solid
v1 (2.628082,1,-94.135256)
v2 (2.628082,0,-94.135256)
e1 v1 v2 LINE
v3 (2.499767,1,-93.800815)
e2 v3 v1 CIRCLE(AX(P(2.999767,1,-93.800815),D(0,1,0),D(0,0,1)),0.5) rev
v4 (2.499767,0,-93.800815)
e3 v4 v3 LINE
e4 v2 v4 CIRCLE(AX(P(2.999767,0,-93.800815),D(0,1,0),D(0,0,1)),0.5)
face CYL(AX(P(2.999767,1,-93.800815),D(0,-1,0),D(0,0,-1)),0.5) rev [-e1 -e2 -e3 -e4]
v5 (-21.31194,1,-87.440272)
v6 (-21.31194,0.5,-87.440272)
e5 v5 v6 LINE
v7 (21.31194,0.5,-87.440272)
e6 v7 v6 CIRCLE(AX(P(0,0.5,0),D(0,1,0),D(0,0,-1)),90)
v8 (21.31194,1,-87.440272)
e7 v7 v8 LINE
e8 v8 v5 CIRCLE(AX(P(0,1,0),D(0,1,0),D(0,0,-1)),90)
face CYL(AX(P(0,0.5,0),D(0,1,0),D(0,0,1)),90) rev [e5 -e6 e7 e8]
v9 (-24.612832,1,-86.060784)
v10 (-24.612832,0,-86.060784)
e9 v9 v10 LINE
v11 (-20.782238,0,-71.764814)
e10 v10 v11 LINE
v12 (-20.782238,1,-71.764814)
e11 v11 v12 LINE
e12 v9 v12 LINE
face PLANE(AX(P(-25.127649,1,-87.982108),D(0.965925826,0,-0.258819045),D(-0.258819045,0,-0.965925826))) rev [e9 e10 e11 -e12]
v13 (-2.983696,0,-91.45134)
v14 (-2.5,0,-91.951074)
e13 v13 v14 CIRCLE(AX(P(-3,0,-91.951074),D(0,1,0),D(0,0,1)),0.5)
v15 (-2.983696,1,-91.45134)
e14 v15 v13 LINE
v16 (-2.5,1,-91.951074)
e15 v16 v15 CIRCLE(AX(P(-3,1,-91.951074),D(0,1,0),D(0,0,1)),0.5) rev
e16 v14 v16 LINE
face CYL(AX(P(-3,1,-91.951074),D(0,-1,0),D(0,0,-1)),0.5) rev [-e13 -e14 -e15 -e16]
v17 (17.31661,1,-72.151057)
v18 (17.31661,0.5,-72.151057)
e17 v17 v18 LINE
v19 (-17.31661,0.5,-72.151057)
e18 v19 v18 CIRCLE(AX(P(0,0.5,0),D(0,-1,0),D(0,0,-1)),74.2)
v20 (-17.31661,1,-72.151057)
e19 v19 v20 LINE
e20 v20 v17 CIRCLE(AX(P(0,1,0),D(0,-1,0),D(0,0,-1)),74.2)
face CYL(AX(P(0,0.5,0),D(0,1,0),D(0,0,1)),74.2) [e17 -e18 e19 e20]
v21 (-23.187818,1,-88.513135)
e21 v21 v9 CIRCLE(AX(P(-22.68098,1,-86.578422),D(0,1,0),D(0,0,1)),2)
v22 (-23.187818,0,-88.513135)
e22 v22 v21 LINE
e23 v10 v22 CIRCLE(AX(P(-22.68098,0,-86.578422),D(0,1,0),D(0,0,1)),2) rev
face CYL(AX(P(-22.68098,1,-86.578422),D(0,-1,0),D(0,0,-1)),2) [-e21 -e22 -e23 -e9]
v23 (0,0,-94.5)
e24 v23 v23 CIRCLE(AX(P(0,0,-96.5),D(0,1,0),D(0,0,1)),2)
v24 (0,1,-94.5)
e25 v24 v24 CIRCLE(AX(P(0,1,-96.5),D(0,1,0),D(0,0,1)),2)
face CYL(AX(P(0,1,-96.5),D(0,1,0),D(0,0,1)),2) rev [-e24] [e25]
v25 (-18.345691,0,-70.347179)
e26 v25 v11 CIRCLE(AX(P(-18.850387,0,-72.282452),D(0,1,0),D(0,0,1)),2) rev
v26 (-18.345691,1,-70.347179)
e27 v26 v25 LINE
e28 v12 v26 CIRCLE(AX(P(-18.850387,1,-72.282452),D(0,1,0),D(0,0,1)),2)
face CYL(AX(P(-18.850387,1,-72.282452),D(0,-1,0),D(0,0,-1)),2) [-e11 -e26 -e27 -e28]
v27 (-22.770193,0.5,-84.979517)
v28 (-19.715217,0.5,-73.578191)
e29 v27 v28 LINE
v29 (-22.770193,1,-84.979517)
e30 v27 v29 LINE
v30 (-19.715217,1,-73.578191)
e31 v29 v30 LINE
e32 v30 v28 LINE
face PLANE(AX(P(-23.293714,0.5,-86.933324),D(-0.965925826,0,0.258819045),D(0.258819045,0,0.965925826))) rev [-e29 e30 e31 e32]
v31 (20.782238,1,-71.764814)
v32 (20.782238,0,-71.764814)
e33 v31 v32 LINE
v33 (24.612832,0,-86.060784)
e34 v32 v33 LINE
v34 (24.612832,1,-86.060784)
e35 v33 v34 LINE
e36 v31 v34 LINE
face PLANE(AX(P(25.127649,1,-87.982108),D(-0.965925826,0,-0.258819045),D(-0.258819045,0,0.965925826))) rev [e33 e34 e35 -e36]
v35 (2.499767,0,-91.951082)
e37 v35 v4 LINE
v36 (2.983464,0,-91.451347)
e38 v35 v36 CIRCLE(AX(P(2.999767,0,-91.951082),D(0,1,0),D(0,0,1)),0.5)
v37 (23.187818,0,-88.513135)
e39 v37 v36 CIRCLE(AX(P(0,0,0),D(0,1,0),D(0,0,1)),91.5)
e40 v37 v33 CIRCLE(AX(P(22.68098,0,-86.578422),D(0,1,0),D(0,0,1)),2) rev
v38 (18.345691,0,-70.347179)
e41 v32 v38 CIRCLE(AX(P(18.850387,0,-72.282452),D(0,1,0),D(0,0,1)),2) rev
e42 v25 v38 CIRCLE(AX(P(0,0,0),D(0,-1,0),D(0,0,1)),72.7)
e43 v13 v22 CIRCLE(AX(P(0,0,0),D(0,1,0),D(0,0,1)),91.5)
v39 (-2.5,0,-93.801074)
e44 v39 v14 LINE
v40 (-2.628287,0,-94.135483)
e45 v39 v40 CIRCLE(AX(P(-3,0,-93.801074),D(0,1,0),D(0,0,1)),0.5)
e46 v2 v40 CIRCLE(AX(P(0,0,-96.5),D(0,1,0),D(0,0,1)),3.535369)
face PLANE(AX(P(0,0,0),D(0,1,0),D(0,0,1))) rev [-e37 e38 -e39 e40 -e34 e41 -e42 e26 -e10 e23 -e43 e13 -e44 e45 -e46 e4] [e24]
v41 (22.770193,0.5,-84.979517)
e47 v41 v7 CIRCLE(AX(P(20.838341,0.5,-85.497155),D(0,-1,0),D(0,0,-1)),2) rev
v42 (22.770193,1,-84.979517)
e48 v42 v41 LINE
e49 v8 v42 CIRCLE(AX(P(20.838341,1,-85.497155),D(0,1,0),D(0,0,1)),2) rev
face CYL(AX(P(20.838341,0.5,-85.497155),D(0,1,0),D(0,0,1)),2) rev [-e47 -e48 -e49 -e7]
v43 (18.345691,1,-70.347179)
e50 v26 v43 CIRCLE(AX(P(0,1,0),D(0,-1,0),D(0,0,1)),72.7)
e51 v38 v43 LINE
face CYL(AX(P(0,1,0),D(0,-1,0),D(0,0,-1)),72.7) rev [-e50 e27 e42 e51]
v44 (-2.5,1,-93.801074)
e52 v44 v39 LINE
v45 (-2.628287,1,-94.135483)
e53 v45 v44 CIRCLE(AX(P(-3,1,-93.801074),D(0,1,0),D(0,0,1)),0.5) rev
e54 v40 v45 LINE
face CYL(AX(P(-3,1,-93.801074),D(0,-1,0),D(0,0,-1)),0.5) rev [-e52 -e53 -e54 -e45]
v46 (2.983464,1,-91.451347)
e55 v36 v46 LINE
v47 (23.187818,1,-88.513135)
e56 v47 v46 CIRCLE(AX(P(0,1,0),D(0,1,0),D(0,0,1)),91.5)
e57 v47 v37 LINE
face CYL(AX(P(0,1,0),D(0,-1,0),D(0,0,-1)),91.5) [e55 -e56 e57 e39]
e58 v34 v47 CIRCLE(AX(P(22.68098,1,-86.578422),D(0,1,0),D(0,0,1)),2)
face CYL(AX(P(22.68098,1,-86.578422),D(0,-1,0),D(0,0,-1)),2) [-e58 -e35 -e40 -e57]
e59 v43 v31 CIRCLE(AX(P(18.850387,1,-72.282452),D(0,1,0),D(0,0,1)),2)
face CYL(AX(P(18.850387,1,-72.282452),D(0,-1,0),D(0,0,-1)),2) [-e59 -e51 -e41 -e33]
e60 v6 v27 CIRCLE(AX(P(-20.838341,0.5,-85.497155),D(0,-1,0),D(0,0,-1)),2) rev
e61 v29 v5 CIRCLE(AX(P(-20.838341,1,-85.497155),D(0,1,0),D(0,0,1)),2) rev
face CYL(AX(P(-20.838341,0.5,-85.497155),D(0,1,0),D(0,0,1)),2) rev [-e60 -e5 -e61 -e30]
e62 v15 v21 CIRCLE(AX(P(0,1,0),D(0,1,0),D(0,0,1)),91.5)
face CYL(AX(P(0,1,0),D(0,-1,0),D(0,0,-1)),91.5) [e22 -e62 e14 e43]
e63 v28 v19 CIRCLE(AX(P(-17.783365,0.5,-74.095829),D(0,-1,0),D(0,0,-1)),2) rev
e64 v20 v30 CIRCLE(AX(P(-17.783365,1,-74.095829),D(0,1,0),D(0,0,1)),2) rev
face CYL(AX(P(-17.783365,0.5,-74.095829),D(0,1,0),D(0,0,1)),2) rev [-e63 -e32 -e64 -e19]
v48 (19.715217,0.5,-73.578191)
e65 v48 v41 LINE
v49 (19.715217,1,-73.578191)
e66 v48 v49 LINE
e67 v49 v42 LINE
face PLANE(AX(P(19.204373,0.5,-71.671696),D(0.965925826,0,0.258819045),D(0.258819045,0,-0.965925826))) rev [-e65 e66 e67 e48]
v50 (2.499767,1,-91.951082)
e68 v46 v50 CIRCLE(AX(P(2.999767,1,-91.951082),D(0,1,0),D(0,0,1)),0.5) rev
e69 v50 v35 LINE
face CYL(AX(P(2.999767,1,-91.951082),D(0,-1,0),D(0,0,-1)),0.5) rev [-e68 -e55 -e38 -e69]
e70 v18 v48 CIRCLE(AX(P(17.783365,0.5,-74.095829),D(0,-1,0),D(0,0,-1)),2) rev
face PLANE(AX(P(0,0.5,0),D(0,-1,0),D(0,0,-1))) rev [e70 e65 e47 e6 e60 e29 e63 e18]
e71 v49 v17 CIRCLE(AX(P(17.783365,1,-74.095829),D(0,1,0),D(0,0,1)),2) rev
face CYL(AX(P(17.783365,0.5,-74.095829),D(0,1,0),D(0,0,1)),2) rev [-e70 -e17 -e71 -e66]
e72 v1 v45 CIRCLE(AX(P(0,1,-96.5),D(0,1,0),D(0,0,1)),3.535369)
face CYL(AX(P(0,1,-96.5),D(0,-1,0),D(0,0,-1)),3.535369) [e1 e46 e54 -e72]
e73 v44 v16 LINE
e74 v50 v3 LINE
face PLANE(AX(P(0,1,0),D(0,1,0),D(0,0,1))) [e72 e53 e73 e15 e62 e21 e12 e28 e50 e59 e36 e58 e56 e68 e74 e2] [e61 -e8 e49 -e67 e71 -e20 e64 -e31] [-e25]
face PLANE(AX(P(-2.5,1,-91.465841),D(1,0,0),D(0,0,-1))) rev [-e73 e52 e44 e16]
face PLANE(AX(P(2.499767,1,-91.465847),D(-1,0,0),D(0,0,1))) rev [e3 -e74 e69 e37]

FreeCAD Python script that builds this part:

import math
import FreeCAD as App
import Part
import Sketcher
from FreeCAD import Vector
Q = App.Units.Quantity


def edges_at(feature, points):
    """Names of the edges that pass closest to the given points."""
    edges = feature.Shape.Edges
    near = lambda p: min(range(len(edges)), key=lambda i: edges[i].distToShape(Part.Vertex(*p))[0])
    return sorted({f"Edge{near(p) + 1}" for p in points})

doc = App.newDocument("Part")
body = doc.addObject("PartDesign::Body", "Body")

sketch1 = body.newObject("Sketcher::SketchObject", "Sketch")
sketch1.AttachmentSupport = (doc.getObject("XZ_Plane"), [""])
sketch1.MapMode = "FlatFace"
sketch1.addGeometry([
    Part.LineSegment(Vector(-25.1, -88, 0), Vector(-20.3, -69.8, 0)),
    Part.ArcOfCircle(Part.Circle(Vector(0, 0, 0), Vector(0, 0, 1), 72.7), math.radians(-106), math.radians(-74)),
    Part.LineSegment(Vector(20.3, -69.8, 0), Vector(25.1, -88, 0)),
    Part.ArcOfCircle(Part.Circle(Vector(0, 0, 0), Vector(0, 0, 1), 91.5), math.radians(-88.43), math.radians(-74.06)),
    Part.LineSegment(Vector(2.5, -91.5, 0), Vector(2.5, -94, 0)),
    Part.ArcOfCircle(Part.Circle(Vector(0, -96.5, 0), Vector(0, 0, 1), 3.5), math.radians(135), math.radians(405)),
    Part.LineSegment(Vector(-2.5, -94, 0), Vector(-2.5, -91.5, 0)),
    Part.ArcOfCircle(Part.Circle(Vector(0, 0, 0), Vector(0, 0, 1), 91.5), math.radians(-105.94), math.radians(-91.57)),
], False)
sketch1.addConstraint([
    Sketcher.Constraint("Coincident", 0, 2, 1, 1),
    Sketcher.Constraint("Coincident", 1, 2, 2, 1),
    Sketcher.Constraint("Coincident", 2, 2, 3, 2),
    Sketcher.Constraint("Coincident", 3, 1, 4, 1),
    Sketcher.Constraint("Coincident", 4, 2, 5, 2),
    Sketcher.Constraint("Coincident", 5, 1, 6, 1),
    Sketcher.Constraint("Coincident", 6, 2, 7, 2),
    Sketcher.Constraint("Coincident", 7, 1, 0, 1),
    Sketcher.Constraint("Vertical", 4),
    Sketcher.Constraint("Vertical", 6),
    Sketcher.Constraint("Coincident", 1, 3, -1, 1),
    Sketcher.Constraint("Coincident", 3, 3, -1, 1),
    Sketcher.Constraint("Coincident", 7, 3, -1, 1),
    Sketcher.Constraint("Equal", 3, 7),
    Sketcher.Constraint("PointOnObject", 5, 3, -2),
    Sketcher.Constraint("Horizontal", 0, 2, 1, 2),
    Sketcher.Constraint("Horizontal", 2, 2, 7, 1),
    Sketcher.Constraint("Radius", 1, 72.7),
    Sketcher.Constraint("Radius", 3, 91.5),
    Sketcher.Constraint("Angle", 0, Q("75 deg")),
    Sketcher.Constraint("DistanceY", 4, 2, -1, 1, 94.0),
    Sketcher.Constraint("DistanceY", 5, 3, -1, 1, 96.5),
    Sketcher.Constraint("DistanceX", 5, 1, -1, 1, 2.5),
    Sketcher.Constraint("Radius", 5, 3.535369),
    Sketcher.Constraint("DistanceY", 0, 2, -1, 1, 69.81963),
])
pad1 = body.newObject("PartDesign::Pad", "Pad")
pad1.Profile = sketch1
pad1.Length = 1
pad1.Reversed = True

sketch2 = body.newObject("Sketcher::SketchObject", "Sketch001")
sketch2.AttachmentSupport = (doc.getObject("XZ_Plane"), [""])
sketch2.MapMode = "FlatFace"
sketch2.AttachmentOffset = App.Placement(Vector(0, 0, -1), App.Rotation())
sketch2.addGeometry([
    Part.LineSegment(Vector(19, -72, 0), Vector(23, -87, 0)),
    Part.ArcOfCircle(Part.Circle(Vector(0, 0, 0), Vector(0, 0, 1), 90), math.radians(-105), math.radians(-75)),
    Part.LineSegment(Vector(-23, -87, 0), Vector(-19, -72, 0)),
    Part.ArcOfCircle(Part.Circle(Vector(0, 0, 0), Vector(0, 0, 1), 74), math.radians(-105), math.radians(-75)),
], False)
sketch2.addConstraint([
    Sketcher.Constraint("Coincident", 0, 2, 1, 2),
    Sketcher.Constraint("Coincident", 1, 1, 2, 1),
    Sketcher.Constraint("Coincident", 2, 2, 3, 1),
    Sketcher.Constraint("Coincident", 3, 2, 0, 1),
    Sketcher.Constraint("Coincident", 1, 3, -1, 1),
    Sketcher.Constraint("Coincident", 3, 3, -1, 1),
    Sketcher.Constraint("Horizontal", 0, 2, 1, 1),
    Sketcher.Constraint("Horizontal", 2, 2, 3, 2),
    Sketcher.Constraint("Radius", 1, 90.0),
    Sketcher.Constraint("Radius", 3, 74.2),
    Sketcher.Constraint("Angle", 0, Q("-75 deg")),
    Sketcher.Constraint("DistanceX", 1, 1, 0, 2, 46.587428),
])
pocket1 = body.newObject("PartDesign::Pocket", "Pocket")
pocket1.Profile = sketch2
pocket1.Length = 0.5
pocket1.Reversed = True
doc.recompute()

fillet = body.newObject("PartDesign::Fillet", "Fillet")
fillet.Base = (pocket1, edges_at(pocket1, [
    (25.128, 0.5, -87.982),
    (20.261, 0.5, -69.82),
    (-20.261, 0.5, -69.82),
    (-25.128, 0.5, -87.982),
    (19.204, 0.75, -71.672),
    (-19.204, 0.75, -71.672),
    (-23.294, 0.75, -86.933),
    (23.294, 0.75, -86.933),
]))
fillet.Radius = 2
doc.recompute()

fillet2 = body.newObject("PartDesign::Fillet", "Fillet001")
fillet2.Base = (fillet, edges_at(fillet, [
    (-2.5, 0.5, -91.466),
    (-2.5, 0.5, -94),
    (2.5, 0.5, -94),
    (2.5, 0.5, -91.466),
]))
fillet2.Radius = 0.5

sketch3 = body.newObject("Sketcher::SketchObject", "Sketch002")
sketch3.AttachmentSupport = (doc.getObject("XZ_Plane"), [""])
sketch3.MapMode = "FlatFace"
sketch3.AttachmentOffset = App.Placement(Vector(0, 0, -1), App.Rotation())
sketch3.addGeometry(Part.Circle(Vector(0, -96.5, 0), Vector(0, 0, 1), 2), False)
sketch3.addConstraint([
    Sketcher.Constraint("PointOnObject", 0, 3, -2),
    Sketcher.Constraint("Diameter", 0, 4.0),
    Sketcher.Constraint("DistanceY", 0, 3, -1, 1, 96.5),
])
doc.recompute()
hole = body.newObject("PartDesign::Hole", "Hole")
hole.Profile = sketch3
hole.ThreadType = "None"
hole.Diameter = 4
hole.DepthType = "ThroughAll"
hole.Reversed = True

doc.recompute()
